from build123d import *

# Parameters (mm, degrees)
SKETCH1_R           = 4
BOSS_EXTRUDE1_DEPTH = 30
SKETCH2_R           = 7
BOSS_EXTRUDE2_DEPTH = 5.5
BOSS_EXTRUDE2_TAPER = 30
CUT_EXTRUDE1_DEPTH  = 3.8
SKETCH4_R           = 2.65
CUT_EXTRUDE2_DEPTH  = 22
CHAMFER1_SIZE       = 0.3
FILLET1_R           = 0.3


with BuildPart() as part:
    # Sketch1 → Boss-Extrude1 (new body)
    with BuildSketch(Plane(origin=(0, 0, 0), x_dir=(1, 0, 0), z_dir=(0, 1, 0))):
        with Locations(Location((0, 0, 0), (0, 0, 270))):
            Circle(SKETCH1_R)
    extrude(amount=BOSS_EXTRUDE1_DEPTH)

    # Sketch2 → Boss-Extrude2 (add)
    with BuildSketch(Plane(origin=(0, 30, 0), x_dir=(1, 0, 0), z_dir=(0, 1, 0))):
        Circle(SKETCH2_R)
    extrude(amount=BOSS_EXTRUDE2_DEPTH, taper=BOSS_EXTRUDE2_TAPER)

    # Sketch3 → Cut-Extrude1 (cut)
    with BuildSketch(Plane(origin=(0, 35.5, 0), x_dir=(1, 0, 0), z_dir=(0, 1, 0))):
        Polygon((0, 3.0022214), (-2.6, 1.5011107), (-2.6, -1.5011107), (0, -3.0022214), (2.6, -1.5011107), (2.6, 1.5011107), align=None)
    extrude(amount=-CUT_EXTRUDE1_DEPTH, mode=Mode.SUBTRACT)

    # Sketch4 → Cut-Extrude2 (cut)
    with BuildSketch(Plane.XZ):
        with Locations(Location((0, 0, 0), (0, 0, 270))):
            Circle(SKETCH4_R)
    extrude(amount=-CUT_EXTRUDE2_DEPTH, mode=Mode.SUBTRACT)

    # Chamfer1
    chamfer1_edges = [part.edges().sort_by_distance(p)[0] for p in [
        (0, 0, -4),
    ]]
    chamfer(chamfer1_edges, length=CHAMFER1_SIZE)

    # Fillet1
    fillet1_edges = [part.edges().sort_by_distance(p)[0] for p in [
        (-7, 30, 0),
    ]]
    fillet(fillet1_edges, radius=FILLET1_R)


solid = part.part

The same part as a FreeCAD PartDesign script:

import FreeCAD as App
import Part
import Sketcher

V = App.Vector
Q = App.Units.Quantity


def edges_at(feature, points):
    """Names of the edges that pass closest to the given points."""
    edges = feature.Shape.Edges
    near = lambda p: min(range(len(edges)), key=lambda i: edges[i].distToShape(Part.Vertex(*p))[0])
    return sorted({f"Edge{near(p) + 1}" for p in points})

doc = App.newDocument("Part")
body = doc.addObject("PartDesign::Body", "Body")

# Sketch on XZ plane
sketch1 = body.newObject("Sketcher::SketchObject", "Sketch")
sketch1.AttachmentSupport = (doc.getObject("XZ_Plane"), [""])
sketch1.MapMode = "FlatFace"
sketch1.addGeometry(Part.Circle(V(0, 0, 0), V(0, 0, 1), 4), False)
sketch1.addConstraint([
    Sketcher.Constraint("Coincident", 0, 3, -1, 1),
    Sketcher.Constraint("Diameter", 0, Q("8 mm")),
])
pad1 = body.newObject("PartDesign::Pad", "Pad")
pad1.Profile = sketch1
pad1.Length = 30
pad1.Reversed = True

# Sketch on XZ plane
sketch2 = body.newObject("Sketcher::SketchObject", "Sketch001")
sketch2.AttachmentSupport = (doc.getObject("XZ_Plane"), [""])
sketch2.MapMode = "FlatFace"
sketch2.AttachmentOffset = App.Placement(V(0, 0, -30), App.Rotation())
sketch2.addGeometry(Part.Circle(V(0, 0, 0), V(0, 0, 1), 7), False)
sketch2.addConstraint([
    Sketcher.Constraint("Coincident", 0, 3, -1, 1),
    Sketcher.Constraint("Diameter", 0, Q("14 mm")),
])
pad2 = body.newObject("PartDesign::Pad", "Pad001")
pad2.Profile = sketch2
pad2.Length = 5.5
pad2.Reversed = True
pad2.TaperAngle = -30

# Sketch on XZ plane
sketch3 = body.newObject("Sketcher::SketchObject", "Sketch002")
sketch3.AttachmentSupport = (doc.getObject("XZ_Plane"), [""])
sketch3.MapMode = "FlatFace"
sketch3.AttachmentOffset = App.Placement(V(0, 0, -35.5), App.Rotation())
sketch3.addGeometry([
    Part.LineSegment(V(0, -3, 0), V(-2.6, -1.5, 0)),  # 0
    Part.LineSegment(V(-2.6, -1.5, 0), V(-2.6, 1.5, 0)),  # 1
    Part.LineSegment(V(-2.6, 1.5, 0), V(0, 3, 0)),  # 2
    Part.LineSegment(V(0, 3, 0), V(2.6, 1.5, 0)),  # 3
    Part.LineSegment(V(2.6, 1.5, 0), V(2.6, -1.5, 0)),  # 4
    Part.LineSegment(V(2.6, -1.5, 0), V(0, -3, 0)),  # 5
], False)
sketch3.addConstraint([
    Sketcher.Constraint("Coincident", 0, 2, 1, 1),
    Sketcher.Constraint("Coincident", 1, 2, 2, 1),
    Sketcher.Constraint("Coincident", 2, 2, 3, 1),
    Sketcher.Constraint("Coincident", 3, 2, 4, 1),
    Sketcher.Constraint("Coincident", 4, 2, 5, 1),
    Sketcher.Constraint("Coincident", 5, 2, 0, 1),
    Sketcher.Constraint("Vertical", 1),
    Sketcher.Constraint("Vertical", 4),
    Sketcher.Constraint("Symmetric", 0, 2, 3, 2, -1, 1),
    Sketcher.Constraint("Symmetric", 2, 2, 5, 2, -1, 1),
    Sketcher.Constraint("PointOnObject", 2, 2, -2),
    Sketcher.Constraint("Parallel", 2, 5),
    Sketcher.Constraint("Horizontal", 1, 2, 3, 2),
    Sketcher.Constraint("Angle", 0, Q("150 deg")),
    Sketcher.Constraint("DistanceX", 0, 2, -1, 1, Q("2.6 mm")),
    Sketcher.Constraint("DistanceY", 1, 1, 1, 2, Q("3.002221 mm")),
])
pocket1 = body.newObject("PartDesign::Pocket", "Pocket")
pocket1.Profile = sketch3
pocket1.Length = 3.8
pocket1.Reversed = True

# Sketch on XZ plane
sketch4 = body.newObject("Sketcher::SketchObject", "Sketch003")
sketch4.AttachmentSupport = (doc.getObject("XZ_Plane"), [""])
sketch4.MapMode = "FlatFace"
sketch4.addGeometry(Part.Circle(V(0, 0, 0), V(0, 0, 1), 2.6), False)
sketch4.addConstraint([
    Sketcher.Constraint("Coincident", 0, 3, -1, 1),
    Sketcher.Constraint("Diameter", 0, Q("5.3 mm")),
])
pocket2 = body.newObject("PartDesign::Pocket", "Pocket001")
pocket2.Profile = sketch4
pocket2.Length = 22
doc.recompute()

chamfer = body.newObject("PartDesign::Chamfer", "Chamfer")
chamfer.Base = (pocket2, edges_at(pocket2, [(0, 0, -4)]))
chamfer.Size = 0.3
doc.recompute()

fillet = body.newObject("PartDesign::Fillet", "Fillet")
fillet.Base = (chamfer, edges_at(chamfer, [(-7, 30, 0)]))
fillet.Radius = 0.3

doc.recompute()
